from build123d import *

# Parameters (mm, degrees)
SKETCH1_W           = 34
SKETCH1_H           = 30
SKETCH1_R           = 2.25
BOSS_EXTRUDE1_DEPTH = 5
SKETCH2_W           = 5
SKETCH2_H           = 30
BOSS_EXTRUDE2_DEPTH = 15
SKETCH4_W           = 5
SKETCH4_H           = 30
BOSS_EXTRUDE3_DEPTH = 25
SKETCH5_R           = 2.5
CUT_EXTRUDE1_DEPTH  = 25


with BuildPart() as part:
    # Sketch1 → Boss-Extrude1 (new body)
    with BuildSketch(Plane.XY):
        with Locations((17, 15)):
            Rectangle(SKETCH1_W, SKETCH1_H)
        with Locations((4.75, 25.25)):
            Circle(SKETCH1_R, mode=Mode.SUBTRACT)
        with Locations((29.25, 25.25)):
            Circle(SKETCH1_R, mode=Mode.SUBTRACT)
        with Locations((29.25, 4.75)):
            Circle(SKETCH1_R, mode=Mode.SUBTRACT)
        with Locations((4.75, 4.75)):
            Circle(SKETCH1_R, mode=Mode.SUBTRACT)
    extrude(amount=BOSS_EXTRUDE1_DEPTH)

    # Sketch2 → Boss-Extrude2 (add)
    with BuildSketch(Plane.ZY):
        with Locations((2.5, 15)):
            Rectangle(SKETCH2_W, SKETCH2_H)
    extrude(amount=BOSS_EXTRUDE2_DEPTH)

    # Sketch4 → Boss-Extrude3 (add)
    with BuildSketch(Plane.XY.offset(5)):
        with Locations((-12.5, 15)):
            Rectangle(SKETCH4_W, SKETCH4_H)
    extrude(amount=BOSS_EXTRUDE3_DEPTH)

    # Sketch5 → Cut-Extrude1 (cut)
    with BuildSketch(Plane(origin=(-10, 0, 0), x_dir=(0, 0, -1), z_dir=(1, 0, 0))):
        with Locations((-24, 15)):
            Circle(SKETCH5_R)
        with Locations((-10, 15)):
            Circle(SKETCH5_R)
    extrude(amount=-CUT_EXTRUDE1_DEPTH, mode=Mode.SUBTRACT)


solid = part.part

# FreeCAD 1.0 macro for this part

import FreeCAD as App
import Part
import Sketcher
from FreeCAD import Vector


def add_polygon(sketch, points):
    """Adds a closed chain of lines whose ends are joined by coincident constraints."""
    first, n = sketch.GeometryCount, len(points)
    for a, b in zip(points, points[1:] + points[:1]):
        sketch.addGeometry(Part.LineSegment(App.Vector(*a, 0), App.Vector(*b, 0)), False)
    for i in range(n):
        sketch.addConstraint(Sketcher.Constraint("Coincident", first + i, 2, first + (i + 1) % n, 1))

doc = App.newDocument("Part")
body = doc.addObject("PartDesign::Body", "Body")

# Sketch on XY plane
sketch1 = doc.addObject("Sketcher::SketchObject", "Sketch")
body.addObject(sketch1)
sketch1.AttachmentSupport = (doc.XY_Plane, [""])
sketch1.MapMode = "FlatFace"
add_polygon(sketch1, [(0, 30), (0, 0), (34, 0), (34, 30)])  # lines 0-3
sketch1.addGeometry(Part.Circle(Vector(4.8, 4.8, 0), Vector(0, 0, 1), 2.2), False)  # 4
sketch1.addGeometry(Part.Circle(Vector(29.2, 4.8, 0), Vector(0, 0, 1), 2.2), False)  # 5
sketch1.addGeometry(Part.Circle(Vector(4.8, 25.2, 0), Vector(0, 0, 1), 2.2), False)  # 6
sketch1.addGeometry(Part.Circle(Vector(29.2, 25.2, 0), Vector(0, 0, 1), 2.2), False)  # 7
sketch1.addConstraint(Sketcher.Constraint("Vertical", 0))
sketch1.addConstraint(Sketcher.Constraint("Horizontal", 1))
sketch1.addConstraint(Sketcher.Constraint("Vertical", 2))
sketch1.addConstraint(Sketcher.Constraint("Horizontal", 3))
sketch1.addConstraint(Sketcher.Constraint("Coincident", 0, 2, -1, 1))
sketch1.addConstraint(Sketcher.Constraint("Equal", 4, 5))
sketch1.addConstraint(Sketcher.Constraint("Equal", 5, 6))
sketch1.addConstraint(Sketcher.Constraint("Equal", 6, 7))
sketch1.addConstraint(Sketcher.Constraint("Horizontal", 4, 3, 5, 3))
sketch1.addConstraint(Sketcher.Constraint("Horizontal", 6, 3, 7, 3))
sketch1.addConstraint(Sketcher.Constraint("Vertical", 4, 3, 6, 3))
sketch1.addConstraint(Sketcher.Constraint("Vertical", 5, 3, 7, 3))
sketch1.addConstraint(Sketcher.Constraint("Diameter", 4, 4.5))
sketch1.addConstraint(Sketcher.Constraint("DistanceX", 1, 1, 1, 2, 34.0))
sketch1.addConstraint(Sketcher.Constraint("DistanceY", 0, 2, 0, 1, 30.0))
sketch1.addConstraint(Sketcher.Constraint("DistanceX", 4, 3, 5, 3, 24.5))
sketch1.addConstraint(Sketcher.Constraint("DistanceY", 4, 3, 6, 3, 20.5))
sketch1.addConstraint(Sketcher.Constraint("DistanceX", -1, 1, 4, 3, 4.75))
sketch1.addConstraint(Sketcher.Constraint("DistanceY", -1, 1, 4, 3, 4.75))
pad1 = doc.addObject("PartDesign::Pad", "Pad")
body.addObject(pad1)
pad1.Profile = sketch1
pad1.Length = 5

# Sketch on YZ plane
sketch2 = doc.addObject("Sketcher::SketchObject", "Sketch001")
body.addObject(sketch2)
sketch2.AttachmentSupport = (doc.YZ_Plane, [""])
sketch2.MapMode = "FlatFace"
add_polygon(sketch2, [(30, 0), (0, 0), (0, 5), (30, 5)])  # lines 0-3
sketch2.addConstraint(Sketcher.Constraint("Horizontal", 0))
sketch2.addConstraint(Sketcher.Constraint("Vertical", 1))
sketch2.addConstraint(Sketcher.Constraint("Horizontal", 2))
sketch2.addConstraint(Sketcher.Constraint("Vertical", 3))
sketch2.addConstraint(Sketcher.Constraint("Coincident", 0, 2, -1, 1))
sketch2.addConstraint(Sketcher.Constraint("DistanceX", 0, 2, 0, 1, 30.0))
sketch2.addConstraint(Sketcher.Constraint("DistanceY", 1, 1, 1, 2, 5.0))
pad2 = doc.addObject("PartDesign::Pad", "Pad001")
body.addObject(pad2)
pad2.Profile = sketch2
pad2.Length = 15
pad2.Reversed = True

# Sketch on XY plane
sketch3 = doc.addObject("Sketcher::SketchObject", "Sketch002")
body.addObject(sketch3)
sketch3.AttachmentSupport = (doc.XY_Plane, [""])
sketch3.MapMode = "FlatFace"
sketch3.AttachmentOffset = App.Placement(Vector(0, 0, 5), App.Rotation())
add_polygon(sketch3, [(-15, 30), (-15, 0), (-10, 0), (-10, 30)])  # lines 0-3
sketch3.addConstraint(Sketcher.Constraint("Vertical", 0))
sketch3.addConstraint(Sketcher.Constraint("Horizontal", 1))
sketch3.addConstraint(Sketcher.Constraint("Vertical", 2))
sketch3.addConstraint(Sketcher.Constraint("Horizontal", 3))
sketch3.addConstraint(Sketcher.Constraint("PointOnObject", 0, 2, -1))
sketch3.addConstraint(Sketcher.Constraint("DistanceX", 1, 1, 1, 2, 5.0))
sketch3.addConstraint(Sketcher.Constraint("DistanceY", 0, 2, 0, 1, 30.0))
sketch3.addConstraint(Sketcher.Constraint("DistanceX", 0, 2, -1, 1, 15.0))
pad3 = doc.addObject("PartDesign::Pad", "Pad002")
body.addObject(pad3)
pad3.Profile = sketch3
pad3.Length = 25

# Sketch on YZ plane
sketch4 = doc.addObject("Sketcher::SketchObject", "Sketch003")
body.addObject(sketch4)
sketch4.AttachmentSupport = (doc.YZ_Plane, [""])
sketch4.MapMode = "FlatFace"
sketch4.AttachmentOffset = App.Placement(Vector(0, 0, -10), App.Rotation())
sketch4.addGeometry(Part.Circle(Vector(15, 24, 0), Vector(0, 0, 1), 2.5), False)
sketch4.addGeometry(Part.Circle(Vector(15, 10, 0), Vector(0, 0, 1), 2.5), False)
sketch4.addConstraint(Sketcher.Constraint("Equal", 0, 1))
sketch4.addConstraint(Sketcher.Constraint("Vertical", 0, 3, 1, 3))
sketch4.addConstraint(Sketcher.Constraint("Diameter", 0, 5.0))
sketch4.addConstraint(Sketcher.Constraint("DistanceX", -1, 1, 0, 3, 15.0))
sketch4.addConstraint(Sketcher.Constraint("DistanceY", -1, 1, 0, 3, 24.0))
sketch4.addConstraint(Sketcher.Constraint("DistanceY", -1, 1, 1, 3, 10.0))
pocket1 = doc.addObject("PartDesign::Pocket", "Pocket")
body.addObject(pocket1)
pocket1.Profile = sketch4
pocket1.Length = 25

doc.recompute()
